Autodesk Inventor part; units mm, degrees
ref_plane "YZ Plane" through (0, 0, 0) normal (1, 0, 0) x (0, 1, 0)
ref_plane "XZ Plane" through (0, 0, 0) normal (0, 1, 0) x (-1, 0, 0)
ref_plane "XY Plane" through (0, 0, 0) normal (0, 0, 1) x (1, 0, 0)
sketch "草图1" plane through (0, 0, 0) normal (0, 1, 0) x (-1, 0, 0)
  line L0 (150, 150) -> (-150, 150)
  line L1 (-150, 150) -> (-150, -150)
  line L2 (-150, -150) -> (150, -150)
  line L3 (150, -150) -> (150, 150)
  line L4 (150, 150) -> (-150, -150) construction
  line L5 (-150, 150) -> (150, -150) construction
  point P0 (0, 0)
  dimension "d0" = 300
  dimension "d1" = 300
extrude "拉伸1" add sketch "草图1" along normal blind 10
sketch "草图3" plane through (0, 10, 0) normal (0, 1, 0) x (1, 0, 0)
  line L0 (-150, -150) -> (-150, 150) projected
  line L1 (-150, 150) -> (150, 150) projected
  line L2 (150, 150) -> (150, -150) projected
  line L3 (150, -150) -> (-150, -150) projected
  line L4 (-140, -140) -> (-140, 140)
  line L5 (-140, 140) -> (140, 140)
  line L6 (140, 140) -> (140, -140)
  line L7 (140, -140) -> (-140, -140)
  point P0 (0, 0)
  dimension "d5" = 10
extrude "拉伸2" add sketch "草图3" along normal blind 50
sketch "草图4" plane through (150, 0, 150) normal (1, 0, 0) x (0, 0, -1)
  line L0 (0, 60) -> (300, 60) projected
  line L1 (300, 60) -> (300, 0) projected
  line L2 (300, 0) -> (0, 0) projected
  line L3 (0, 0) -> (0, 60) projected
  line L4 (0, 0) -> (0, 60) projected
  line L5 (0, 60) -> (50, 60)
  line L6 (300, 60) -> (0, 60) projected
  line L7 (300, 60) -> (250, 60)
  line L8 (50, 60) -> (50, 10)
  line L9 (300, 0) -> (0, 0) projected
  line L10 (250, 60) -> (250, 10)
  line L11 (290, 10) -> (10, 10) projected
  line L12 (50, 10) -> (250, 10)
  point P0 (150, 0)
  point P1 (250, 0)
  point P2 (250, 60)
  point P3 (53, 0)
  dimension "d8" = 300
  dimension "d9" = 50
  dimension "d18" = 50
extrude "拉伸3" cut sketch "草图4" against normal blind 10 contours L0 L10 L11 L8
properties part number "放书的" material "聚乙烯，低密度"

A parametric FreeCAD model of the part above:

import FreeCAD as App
import Part
import Sketcher


def add_polygon(sketch, points):
    """Adds a closed chain of lines whose ends are joined by coincident constraints."""
    first, n = sketch.GeometryCount, len(points)
    for a, b in zip(points, points[1:] + points[:1]):
        sketch.addGeometry(Part.LineSegment(App.Vector(*a, 0), App.Vector(*b, 0)), False)
    for i in range(n):
        sketch.addConstraint(Sketcher.Constraint("Coincident", first + i, 2, first + (i + 1) % n, 1))

doc = App.newDocument("Part")
body = doc.addObject("PartDesign::Body", "Body")

# Sketch on XZ plane
sketch1 = body.newObject("Sketcher::SketchObject", "Sketch")
sketch1.AttachmentSupport = (doc.getObject("XZ_Plane"), [""])
sketch1.MapMode = "FlatFace"
add_polygon(sketch1, [(-150, -150), (-150, 150), (150, 150), (150, -150)])  # lines 0-3
sketch1.addConstraint([
    Sketcher.Constraint("Vertical", 0),
    Sketcher.Constraint("Horizontal", 1),
    Sketcher.Constraint("Vertical", 2),
    Sketcher.Constraint("Horizontal", 3),
    Sketcher.Constraint("Symmetric", 0, 2, 2, 2, -1, 1),
    Sketcher.Constraint("Equal", 3, 0),
    Sketcher.Constraint("DistanceX", 1, 1, 1, 2, 300.0),
])
pad1 = body.newObject("PartDesign::Pad", "Pad")
pad1.Profile = sketch1
pad1.Length = 10
pad1.Reversed = True

# Sketch on XZ plane
sketch2 = body.newObject("Sketcher::SketchObject", "Sketch001")
sketch2.AttachmentSupport = (doc.getObject("XZ_Plane"), [""])
sketch2.MapMode = "FlatFace"
sketch2.AttachmentOffset = App.Placement(App.Vector(0, 0, -10), App.Rotation())
add_polygon(sketch2, [(-150, -150), (-150, 150), (150, 150), (150, -150)])  # lines 0-3
add_polygon(sketch2, [(140, 140), (-140, 140), (-140, -140), (140, -140)])  # lines 4-7
sketch2.addConstraint([
    Sketcher.Constraint("Vertical", 0),
    Sketcher.Constraint("Horizontal", 1),
    Sketcher.Constraint("Vertical", 2),
    Sketcher.Constraint("Horizontal", 3),
    Sketcher.Constraint("Horizontal", 4),
    Sketcher.Constraint("Vertical", 5),
    Sketcher.Constraint("Horizontal", 6),
    Sketcher.Constraint("Vertical", 7),
    Sketcher.Constraint("Symmetric", 0, 2, 2, 2, -1, 1),
    Sketcher.Constraint("Symmetric", 4, 2, 6, 2, -1, 1),
    Sketcher.Constraint("Equal", 3, 0),
    Sketcher.Constraint("Equal", 6, 5),
    Sketcher.Constraint("DistanceX", 0, 2, 4, 2, 10.0),
    Sketcher.Constraint("DistanceX", 1, 1, 1, 2, 300.0),
])
pad2 = body.newObject("PartDesign::Pad", "Pad001")
pad2.Profile = sketch2
pad2.Length = 50
pad2.Reversed = True

# Sketch on YZ plane
sketch3 = body.newObject("Sketcher::SketchObject", "Sketch002")
sketch3.AttachmentSupport = (doc.getObject("YZ_Plane"), [""])
sketch3.MapMode = "FlatFace"
sketch3.AttachmentOffset = App.Placement(App.Vector(0, 0, 150), App.Rotation())
add_polygon(sketch3, [(60, -100), (60, 100), (10, 100), (10, -100)])  # lines 0-3
sketch3.addConstraint([
    Sketcher.Constraint("Vertical", 0),
    Sketcher.Constraint("Horizontal", 1),
    Sketcher.Constraint("Vertical", 2),
    Sketcher.Constraint("Horizontal", 3),
    Sketcher.Constraint("DistanceX", 1, 2, 1, 1, 50.0),
    Sketcher.Constraint("DistanceY", 0, 1, 0, 2, 200.0),
    Sketcher.Constraint("DistanceX", -1, 1, 0, 2, 60.0),
    Sketcher.Constraint("DistanceY", -1, 1, 0, 2, 100.0),
])
pocket1 = body.newObject("PartDesign::Pocket", "Pocket")
pocket1.Profile = sketch3
pocket1.Length = 10

doc.recompute()
